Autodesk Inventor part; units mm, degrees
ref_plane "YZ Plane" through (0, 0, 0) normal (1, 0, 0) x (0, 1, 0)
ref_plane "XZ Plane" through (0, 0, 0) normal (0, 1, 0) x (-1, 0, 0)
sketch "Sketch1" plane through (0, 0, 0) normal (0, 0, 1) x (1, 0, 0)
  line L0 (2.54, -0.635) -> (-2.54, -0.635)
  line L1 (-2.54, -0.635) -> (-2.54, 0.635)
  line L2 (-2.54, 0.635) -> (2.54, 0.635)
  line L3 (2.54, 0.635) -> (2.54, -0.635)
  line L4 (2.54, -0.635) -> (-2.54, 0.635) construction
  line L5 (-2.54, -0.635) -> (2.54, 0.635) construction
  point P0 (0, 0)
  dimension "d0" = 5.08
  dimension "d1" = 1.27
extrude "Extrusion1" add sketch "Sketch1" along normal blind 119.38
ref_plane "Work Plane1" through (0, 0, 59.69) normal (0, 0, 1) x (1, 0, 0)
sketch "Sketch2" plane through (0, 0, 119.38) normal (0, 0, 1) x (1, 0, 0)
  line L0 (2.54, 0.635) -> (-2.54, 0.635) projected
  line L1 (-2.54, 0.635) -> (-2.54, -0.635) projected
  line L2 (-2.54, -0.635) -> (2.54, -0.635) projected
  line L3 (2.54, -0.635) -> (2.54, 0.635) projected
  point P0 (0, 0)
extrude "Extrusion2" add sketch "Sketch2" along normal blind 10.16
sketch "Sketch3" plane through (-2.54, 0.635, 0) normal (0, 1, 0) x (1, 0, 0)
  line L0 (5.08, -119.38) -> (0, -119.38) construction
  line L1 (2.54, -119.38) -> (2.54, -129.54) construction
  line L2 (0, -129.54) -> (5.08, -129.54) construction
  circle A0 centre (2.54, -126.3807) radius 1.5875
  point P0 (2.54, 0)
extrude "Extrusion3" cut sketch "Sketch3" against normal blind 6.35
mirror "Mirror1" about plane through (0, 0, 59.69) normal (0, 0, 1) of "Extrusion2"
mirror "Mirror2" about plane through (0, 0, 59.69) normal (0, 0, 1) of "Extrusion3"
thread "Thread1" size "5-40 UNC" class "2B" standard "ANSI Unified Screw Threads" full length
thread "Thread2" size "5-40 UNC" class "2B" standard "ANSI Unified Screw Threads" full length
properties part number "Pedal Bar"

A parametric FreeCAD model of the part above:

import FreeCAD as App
import Part
import Sketcher
from FreeCAD import Vector
Q = App.Units.Quantity


def add_polygon(sketch, points):
    """Adds a closed chain of lines whose ends are joined by coincident constraints."""
    first, n = sketch.GeometryCount, len(points)
    for a, b in zip(points, points[1:] + points[:1]):
        sketch.addGeometry(Part.LineSegment(App.Vector(*a, 0), App.Vector(*b, 0)), False)
    for i in range(n):
        sketch.addConstraint(Sketcher.Constraint("Coincident", first + i, 2, first + (i + 1) % n, 1))

doc = App.newDocument("Part")
body = doc.addObject("PartDesign::Body", "Body")

sketch1 = body.newObject("Sketcher::SketchObject", "Sketch")
sketch1.AttachmentSupport = (doc.getObject("XY_Plane"), [""])
sketch1.MapMode = "FlatFace"
add_polygon(sketch1, [(-2.5, -0.6), (2.5, -0.6), (2.5, 0.6), (-2.5, 0.6)])
sketch1.addConstraint(Sketcher.Constraint("Horizontal", 0))
sketch1.addConstraint(Sketcher.Constraint("Vertical", 1))
sketch1.addConstraint(Sketcher.Constraint("Horizontal", 2))
sketch1.addConstraint(Sketcher.Constraint("Vertical", 3))
sketch1.addConstraint(Sketcher.Constraint("Symmetric", 0, 2, 2, 2, -1, 1))
sketch1.addConstraint(Sketcher.Constraint("DistanceX", 0, 1, 0, 2, Q("0.2 in")))
sketch1.addConstraint(Sketcher.Constraint("DistanceY", 1, 1, 1, 2, Q("0.05 in")))
pad1 = body.newObject("PartDesign::Pad", "Pad")
pad1.Profile = sketch1
pad1.Length = Q("4.7 in")

sketch2 = body.newObject("Sketcher::SketchObject", "Sketch001")
sketch2.AttachmentSupport = (doc.getObject("XY_Plane"), [""])
sketch2.MapMode = "FlatFace"
sketch2.AttachmentOffset = App.Placement(Vector(0, 0, 4.7 * 25.4), App.Rotation())
add_polygon(sketch2, [(2.5, -0.6), (2.5, 0.6), (-2.5, 0.6), (-2.5, -0.6)])
sketch2.addConstraint(Sketcher.Constraint("Vertical", 0))
sketch2.addConstraint(Sketcher.Constraint("Horizontal", 1))
sketch2.addConstraint(Sketcher.Constraint("Vertical", 2))
sketch2.addConstraint(Sketcher.Constraint("Horizontal", 3))
sketch2.addConstraint(Sketcher.Constraint("Symmetric", 0, 2, 2, 2, -1, 1))
sketch2.addConstraint(Sketcher.Constraint("DistanceX", 1, 2, 1, 1, Q("0.2 in")))
sketch2.addConstraint(Sketcher.Constraint("DistanceY", 0, 1, 0, 2, Q("0.05 in")))
pad2 = body.newObject("PartDesign::Pad", "Pad001")
pad2.Profile = sketch2
pad2.Length = Q("0.4 in")

sketch3 = body.newObject("Sketcher::SketchObject", "Sketch002")
sketch3.AttachmentSupport = (doc.getObject("XZ_Plane"), [""])
sketch3.MapMode = "FlatFace"
sketch3.AttachmentOffset = App.Placement(Vector(0, 0, -0.025 * 25.4), App.Rotation())
sketch3.addGeometry(Part.Circle(Vector(0, 126.4, 0), Vector(0, 0, 1), 1.6), False)
sketch3.addConstraint(Sketcher.Constraint("PointOnObject", 0, 3, -2))
sketch3.addConstraint(Sketcher.Constraint("Diameter", 0, Q("0.125 in")))
sketch3.addConstraint(Sketcher.Constraint("DistanceY", -1, 1, 0, 3, 126.3807))
pocket1 = body.newObject("PartDesign::Pocket", "Pocket")
pocket1.Profile = sketch3
pocket1.Length = Q("0.25 in")
pocket1.Reversed = True
doc.recompute()

datumplane = body.newObject("PartDesign::Plane", "DatumPlane")
datumplane.AttachmentSupport = (doc.getObject("XY_Plane"), [""])
datumplane.MapMode = "FlatFace"
datumplane.AttachmentOffset = App.Placement(Vector(0, 0, 2.35 * 25.4), App.Rotation())
mirrored = body.newObject("PartDesign::Mirrored", "Mirrored")
mirrored.Originals = [pad2]
mirrored.MirrorPlane = (datumplane, [""])
body.Tip = mirrored
doc.recompute()

datumplane2 = body.newObject("PartDesign::Plane", "DatumPlane001")
datumplane2.AttachmentSupport = (doc.getObject("XY_Plane"), [""])
datumplane2.MapMode = "FlatFace"
datumplane2.AttachmentOffset = App.Placement(Vector(0, 0, 2.35 * 25.4), App.Rotation())
mirrored2 = body.newObject("PartDesign::Mirrored", "Mirrored001")
mirrored2.Originals = [pocket1]
mirrored2.MirrorPlane = (datumplane2, [""])
body.Tip = mirrored2

doc.recompute()
